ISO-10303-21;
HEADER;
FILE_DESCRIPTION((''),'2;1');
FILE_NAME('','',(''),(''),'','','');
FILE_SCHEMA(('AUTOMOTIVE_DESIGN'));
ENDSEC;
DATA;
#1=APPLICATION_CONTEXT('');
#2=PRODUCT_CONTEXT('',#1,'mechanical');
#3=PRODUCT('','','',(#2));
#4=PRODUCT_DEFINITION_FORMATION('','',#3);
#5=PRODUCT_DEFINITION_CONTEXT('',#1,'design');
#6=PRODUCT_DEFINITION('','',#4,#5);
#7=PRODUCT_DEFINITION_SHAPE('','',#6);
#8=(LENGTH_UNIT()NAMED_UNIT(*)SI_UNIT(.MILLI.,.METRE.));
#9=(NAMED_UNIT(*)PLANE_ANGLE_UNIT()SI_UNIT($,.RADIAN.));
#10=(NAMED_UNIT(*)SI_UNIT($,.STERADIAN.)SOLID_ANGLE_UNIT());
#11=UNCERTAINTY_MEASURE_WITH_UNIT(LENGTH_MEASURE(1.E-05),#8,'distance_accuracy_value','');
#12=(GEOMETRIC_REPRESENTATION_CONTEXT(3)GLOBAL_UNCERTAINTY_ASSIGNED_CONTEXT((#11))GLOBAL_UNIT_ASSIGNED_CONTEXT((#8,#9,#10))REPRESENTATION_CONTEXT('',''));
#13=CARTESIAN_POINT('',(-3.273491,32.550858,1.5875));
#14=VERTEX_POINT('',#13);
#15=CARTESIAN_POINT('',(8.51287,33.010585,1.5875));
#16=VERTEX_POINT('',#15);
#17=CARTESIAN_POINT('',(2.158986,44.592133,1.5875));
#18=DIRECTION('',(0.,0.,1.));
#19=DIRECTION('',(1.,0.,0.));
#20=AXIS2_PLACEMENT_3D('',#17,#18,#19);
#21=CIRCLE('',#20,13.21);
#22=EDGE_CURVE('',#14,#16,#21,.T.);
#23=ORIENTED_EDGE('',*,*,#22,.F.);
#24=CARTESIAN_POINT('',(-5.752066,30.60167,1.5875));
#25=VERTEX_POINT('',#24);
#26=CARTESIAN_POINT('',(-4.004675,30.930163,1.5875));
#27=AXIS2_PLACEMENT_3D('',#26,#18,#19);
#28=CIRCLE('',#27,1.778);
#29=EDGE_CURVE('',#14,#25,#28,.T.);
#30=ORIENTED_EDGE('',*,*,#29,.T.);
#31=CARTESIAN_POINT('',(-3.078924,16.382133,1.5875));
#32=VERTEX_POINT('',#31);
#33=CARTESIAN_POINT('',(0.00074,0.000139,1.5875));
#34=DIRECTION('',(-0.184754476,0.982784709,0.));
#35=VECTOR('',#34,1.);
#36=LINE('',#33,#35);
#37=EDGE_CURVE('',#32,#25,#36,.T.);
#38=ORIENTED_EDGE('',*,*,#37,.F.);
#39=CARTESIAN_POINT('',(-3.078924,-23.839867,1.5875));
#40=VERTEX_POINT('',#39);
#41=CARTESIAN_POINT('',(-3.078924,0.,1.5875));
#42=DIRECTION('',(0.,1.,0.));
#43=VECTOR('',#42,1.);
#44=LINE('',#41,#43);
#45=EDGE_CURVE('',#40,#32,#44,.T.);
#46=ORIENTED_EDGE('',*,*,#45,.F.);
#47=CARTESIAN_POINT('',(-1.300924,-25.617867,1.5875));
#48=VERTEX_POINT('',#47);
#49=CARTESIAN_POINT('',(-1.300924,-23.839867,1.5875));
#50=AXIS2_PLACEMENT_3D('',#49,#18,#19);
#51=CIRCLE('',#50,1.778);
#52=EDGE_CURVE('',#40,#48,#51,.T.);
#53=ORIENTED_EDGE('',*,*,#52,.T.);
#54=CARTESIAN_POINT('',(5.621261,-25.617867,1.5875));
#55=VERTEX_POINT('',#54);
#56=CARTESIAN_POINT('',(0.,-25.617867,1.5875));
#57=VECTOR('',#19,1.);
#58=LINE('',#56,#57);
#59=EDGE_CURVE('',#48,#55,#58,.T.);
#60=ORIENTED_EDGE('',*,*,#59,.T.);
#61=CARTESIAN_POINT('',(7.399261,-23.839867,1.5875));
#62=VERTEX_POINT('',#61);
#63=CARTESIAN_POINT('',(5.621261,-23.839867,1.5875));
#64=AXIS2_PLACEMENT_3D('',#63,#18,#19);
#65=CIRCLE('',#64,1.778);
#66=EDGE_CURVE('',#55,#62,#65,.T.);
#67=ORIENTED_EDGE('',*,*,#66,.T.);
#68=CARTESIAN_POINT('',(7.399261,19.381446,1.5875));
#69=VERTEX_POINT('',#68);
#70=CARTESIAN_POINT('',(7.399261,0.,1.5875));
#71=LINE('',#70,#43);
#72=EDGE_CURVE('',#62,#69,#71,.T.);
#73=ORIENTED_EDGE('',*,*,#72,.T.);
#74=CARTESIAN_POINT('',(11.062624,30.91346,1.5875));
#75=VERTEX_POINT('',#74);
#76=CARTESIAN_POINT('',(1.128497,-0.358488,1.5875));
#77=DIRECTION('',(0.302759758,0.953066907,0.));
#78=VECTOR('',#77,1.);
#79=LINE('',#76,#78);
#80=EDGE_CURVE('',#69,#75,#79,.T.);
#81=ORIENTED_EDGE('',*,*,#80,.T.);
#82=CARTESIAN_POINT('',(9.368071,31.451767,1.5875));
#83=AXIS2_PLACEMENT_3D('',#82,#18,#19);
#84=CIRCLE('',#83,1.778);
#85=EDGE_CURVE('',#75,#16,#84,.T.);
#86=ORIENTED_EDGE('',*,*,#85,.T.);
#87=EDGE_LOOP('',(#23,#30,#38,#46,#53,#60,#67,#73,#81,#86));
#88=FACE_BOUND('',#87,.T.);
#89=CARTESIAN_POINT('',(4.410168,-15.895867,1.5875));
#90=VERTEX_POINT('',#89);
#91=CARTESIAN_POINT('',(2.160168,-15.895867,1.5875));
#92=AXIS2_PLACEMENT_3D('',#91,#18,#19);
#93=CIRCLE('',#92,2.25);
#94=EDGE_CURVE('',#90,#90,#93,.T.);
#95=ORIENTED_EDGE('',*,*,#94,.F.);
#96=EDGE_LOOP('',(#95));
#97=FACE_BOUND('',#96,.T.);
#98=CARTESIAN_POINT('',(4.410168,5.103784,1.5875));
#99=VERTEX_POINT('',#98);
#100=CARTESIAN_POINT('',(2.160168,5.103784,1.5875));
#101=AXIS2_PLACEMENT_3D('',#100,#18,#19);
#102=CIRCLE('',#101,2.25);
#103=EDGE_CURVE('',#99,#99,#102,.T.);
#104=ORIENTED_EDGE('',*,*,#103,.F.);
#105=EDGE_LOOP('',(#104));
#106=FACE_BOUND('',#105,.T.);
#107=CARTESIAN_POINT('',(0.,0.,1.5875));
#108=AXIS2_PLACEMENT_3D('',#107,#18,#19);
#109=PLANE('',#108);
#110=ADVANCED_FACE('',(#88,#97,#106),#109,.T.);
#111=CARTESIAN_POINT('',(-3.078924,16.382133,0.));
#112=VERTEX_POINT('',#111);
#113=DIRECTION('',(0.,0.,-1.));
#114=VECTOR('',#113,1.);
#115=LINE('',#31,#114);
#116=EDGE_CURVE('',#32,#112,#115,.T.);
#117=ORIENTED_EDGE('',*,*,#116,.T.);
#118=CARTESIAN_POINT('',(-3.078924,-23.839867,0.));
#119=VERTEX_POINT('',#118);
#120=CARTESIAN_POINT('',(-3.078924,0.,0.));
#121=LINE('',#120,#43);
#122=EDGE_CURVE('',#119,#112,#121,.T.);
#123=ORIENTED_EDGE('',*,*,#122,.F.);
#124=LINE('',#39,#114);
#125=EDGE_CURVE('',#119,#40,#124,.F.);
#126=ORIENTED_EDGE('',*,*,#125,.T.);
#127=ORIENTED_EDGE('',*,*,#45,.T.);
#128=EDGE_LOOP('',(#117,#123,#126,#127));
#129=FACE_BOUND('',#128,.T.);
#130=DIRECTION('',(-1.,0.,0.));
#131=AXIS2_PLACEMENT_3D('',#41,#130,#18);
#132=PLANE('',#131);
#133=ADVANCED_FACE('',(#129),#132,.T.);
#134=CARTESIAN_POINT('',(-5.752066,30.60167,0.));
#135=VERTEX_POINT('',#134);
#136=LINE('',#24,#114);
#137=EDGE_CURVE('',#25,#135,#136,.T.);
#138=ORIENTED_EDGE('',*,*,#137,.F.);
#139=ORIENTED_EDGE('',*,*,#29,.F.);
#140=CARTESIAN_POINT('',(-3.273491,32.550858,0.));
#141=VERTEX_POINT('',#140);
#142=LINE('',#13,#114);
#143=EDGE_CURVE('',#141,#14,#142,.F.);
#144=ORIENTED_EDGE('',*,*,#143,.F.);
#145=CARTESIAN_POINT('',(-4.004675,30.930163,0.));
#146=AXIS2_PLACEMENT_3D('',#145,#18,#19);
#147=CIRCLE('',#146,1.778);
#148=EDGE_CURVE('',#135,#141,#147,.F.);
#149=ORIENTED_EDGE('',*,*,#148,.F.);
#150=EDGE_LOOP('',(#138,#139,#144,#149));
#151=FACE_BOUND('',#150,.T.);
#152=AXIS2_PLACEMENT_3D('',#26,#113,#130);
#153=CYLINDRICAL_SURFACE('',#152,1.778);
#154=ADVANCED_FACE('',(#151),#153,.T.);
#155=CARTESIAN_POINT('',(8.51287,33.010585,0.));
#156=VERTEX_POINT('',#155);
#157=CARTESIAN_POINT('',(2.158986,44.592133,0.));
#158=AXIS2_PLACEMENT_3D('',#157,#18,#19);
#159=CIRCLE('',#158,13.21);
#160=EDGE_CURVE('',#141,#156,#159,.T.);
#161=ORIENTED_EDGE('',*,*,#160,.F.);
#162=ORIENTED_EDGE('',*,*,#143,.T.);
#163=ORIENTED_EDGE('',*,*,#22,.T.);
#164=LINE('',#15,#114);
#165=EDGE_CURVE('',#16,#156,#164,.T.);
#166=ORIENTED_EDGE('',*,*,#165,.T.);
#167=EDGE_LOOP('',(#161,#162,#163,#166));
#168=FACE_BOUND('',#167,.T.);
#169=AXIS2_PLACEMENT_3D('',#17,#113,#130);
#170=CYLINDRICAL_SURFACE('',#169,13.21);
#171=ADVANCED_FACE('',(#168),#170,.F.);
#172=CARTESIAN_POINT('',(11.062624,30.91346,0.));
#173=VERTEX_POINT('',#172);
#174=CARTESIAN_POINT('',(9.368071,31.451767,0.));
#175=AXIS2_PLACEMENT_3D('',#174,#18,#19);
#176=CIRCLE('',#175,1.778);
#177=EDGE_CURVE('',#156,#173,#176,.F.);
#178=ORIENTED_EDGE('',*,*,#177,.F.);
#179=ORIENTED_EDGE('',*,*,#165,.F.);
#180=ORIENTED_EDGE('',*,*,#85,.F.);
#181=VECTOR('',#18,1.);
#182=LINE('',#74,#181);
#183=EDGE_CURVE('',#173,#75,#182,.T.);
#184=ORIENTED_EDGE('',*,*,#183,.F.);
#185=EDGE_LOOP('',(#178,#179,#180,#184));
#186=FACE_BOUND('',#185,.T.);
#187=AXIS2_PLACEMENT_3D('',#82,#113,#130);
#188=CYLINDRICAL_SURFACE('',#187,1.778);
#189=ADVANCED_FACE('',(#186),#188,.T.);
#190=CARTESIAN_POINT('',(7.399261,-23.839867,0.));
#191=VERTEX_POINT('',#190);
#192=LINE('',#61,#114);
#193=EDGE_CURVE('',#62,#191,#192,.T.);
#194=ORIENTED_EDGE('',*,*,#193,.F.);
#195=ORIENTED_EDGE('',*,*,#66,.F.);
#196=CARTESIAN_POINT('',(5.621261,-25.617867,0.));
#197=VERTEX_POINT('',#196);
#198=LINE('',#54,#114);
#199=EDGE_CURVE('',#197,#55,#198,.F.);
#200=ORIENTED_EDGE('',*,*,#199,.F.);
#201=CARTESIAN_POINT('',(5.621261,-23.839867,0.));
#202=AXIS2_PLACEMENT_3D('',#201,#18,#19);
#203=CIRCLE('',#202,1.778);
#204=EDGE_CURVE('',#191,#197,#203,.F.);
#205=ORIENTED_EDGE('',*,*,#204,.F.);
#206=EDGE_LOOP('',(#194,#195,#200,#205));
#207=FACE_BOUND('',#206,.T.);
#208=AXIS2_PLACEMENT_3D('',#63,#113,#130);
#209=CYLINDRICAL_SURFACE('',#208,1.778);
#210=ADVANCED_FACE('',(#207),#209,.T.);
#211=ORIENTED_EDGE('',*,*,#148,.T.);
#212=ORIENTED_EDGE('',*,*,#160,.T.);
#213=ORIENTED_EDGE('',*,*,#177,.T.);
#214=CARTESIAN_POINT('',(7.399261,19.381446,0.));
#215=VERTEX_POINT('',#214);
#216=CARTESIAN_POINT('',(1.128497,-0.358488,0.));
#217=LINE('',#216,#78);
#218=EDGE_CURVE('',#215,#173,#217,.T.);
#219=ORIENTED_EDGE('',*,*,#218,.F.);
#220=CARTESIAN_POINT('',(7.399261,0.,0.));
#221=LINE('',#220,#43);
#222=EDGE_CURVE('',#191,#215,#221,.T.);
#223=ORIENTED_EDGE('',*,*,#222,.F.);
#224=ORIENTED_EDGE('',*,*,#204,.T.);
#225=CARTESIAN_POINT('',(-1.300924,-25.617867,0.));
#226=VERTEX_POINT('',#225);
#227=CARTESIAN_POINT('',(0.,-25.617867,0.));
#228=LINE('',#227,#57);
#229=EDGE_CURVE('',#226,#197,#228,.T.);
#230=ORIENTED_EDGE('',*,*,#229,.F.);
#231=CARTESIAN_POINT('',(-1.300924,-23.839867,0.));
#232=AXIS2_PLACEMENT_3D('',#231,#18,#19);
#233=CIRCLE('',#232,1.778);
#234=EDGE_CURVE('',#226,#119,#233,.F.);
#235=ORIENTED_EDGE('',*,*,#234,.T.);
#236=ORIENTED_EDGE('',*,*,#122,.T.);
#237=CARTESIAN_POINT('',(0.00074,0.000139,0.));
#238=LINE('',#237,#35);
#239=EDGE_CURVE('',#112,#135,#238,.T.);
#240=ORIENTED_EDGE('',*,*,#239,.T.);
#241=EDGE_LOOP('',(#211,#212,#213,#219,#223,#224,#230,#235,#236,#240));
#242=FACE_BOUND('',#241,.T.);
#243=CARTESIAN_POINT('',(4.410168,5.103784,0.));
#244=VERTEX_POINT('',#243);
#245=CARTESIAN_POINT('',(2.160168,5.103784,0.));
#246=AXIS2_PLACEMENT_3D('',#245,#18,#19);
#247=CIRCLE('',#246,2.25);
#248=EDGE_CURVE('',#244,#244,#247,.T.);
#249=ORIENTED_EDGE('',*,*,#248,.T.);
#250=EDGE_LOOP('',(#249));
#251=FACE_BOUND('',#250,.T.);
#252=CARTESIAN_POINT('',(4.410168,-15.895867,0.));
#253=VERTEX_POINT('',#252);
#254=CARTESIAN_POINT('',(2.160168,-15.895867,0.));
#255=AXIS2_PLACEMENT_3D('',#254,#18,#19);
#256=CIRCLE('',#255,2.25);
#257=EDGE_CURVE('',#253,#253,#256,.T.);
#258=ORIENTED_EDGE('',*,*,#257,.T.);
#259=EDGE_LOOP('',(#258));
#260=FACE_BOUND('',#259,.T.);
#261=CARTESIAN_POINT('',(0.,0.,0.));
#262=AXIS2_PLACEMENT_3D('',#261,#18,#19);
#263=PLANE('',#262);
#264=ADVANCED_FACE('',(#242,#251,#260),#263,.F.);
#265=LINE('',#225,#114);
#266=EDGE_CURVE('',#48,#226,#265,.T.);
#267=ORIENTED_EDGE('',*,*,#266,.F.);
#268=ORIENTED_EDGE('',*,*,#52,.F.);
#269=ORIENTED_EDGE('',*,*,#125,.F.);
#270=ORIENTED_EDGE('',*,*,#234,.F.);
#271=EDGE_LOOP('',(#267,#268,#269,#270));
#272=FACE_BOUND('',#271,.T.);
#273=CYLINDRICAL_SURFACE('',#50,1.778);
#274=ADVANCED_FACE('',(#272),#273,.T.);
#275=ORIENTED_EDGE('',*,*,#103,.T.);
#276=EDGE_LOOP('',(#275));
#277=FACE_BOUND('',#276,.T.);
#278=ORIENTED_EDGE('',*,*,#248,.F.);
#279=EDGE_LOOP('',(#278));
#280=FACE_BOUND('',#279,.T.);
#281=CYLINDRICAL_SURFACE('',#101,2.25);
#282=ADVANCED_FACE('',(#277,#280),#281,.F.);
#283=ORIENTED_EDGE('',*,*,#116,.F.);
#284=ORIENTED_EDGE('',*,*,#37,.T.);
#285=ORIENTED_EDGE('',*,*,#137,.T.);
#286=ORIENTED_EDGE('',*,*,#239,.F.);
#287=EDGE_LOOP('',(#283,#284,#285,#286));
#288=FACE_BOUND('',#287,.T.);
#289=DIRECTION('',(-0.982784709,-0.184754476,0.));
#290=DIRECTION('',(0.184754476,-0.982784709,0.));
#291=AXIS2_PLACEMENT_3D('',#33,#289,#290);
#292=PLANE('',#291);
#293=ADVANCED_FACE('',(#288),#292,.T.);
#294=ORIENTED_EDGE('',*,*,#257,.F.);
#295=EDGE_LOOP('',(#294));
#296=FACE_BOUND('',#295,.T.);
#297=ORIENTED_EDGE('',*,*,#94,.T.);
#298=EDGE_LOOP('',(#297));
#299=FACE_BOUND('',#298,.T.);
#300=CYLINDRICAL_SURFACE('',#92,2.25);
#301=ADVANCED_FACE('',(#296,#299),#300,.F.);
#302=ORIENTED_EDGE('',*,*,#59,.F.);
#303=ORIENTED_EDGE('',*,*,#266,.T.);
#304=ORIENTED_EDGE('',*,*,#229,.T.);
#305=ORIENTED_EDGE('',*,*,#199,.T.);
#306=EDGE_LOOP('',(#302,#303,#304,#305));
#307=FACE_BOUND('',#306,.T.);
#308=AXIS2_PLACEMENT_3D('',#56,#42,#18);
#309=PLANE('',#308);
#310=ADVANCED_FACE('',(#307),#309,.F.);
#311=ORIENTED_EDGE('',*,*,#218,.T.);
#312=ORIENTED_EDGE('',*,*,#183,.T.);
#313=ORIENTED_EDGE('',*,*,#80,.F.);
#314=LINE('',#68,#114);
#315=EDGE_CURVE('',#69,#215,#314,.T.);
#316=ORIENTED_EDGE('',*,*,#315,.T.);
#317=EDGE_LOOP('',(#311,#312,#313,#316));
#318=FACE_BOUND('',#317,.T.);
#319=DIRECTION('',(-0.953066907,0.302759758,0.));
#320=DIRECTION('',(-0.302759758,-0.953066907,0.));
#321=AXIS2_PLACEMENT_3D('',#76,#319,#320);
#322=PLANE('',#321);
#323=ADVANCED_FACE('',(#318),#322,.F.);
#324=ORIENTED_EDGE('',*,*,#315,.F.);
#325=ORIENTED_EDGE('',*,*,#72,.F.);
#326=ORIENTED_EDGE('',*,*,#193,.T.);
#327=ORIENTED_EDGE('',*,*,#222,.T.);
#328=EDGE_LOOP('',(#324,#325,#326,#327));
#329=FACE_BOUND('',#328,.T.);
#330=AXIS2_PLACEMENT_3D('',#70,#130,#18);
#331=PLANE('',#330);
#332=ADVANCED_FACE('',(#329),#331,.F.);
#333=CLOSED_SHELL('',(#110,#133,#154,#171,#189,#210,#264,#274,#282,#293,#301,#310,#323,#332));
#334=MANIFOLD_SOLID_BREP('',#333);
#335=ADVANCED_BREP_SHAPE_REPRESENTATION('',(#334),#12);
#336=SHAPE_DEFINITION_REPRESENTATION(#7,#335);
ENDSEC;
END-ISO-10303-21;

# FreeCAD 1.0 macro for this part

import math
import FreeCAD as App
import Part
import Sketcher
from FreeCAD import Vector
Q = App.Units.Quantity


def edges_at(feature, points):
    """Names of the edges that pass closest to the given points."""
    edges = feature.Shape.Edges
    near = lambda p: min(range(len(edges)), key=lambda i: edges[i].distToShape(Part.Vertex(*p))[0])
    return sorted({f"Edge{near(p) + 1}" for p in points})

doc = App.newDocument("Part")
body = doc.addObject("PartDesign::Body", "Body")

# Sketch on XY plane
sketch1 = body.newObject("Sketcher::SketchObject", "Sketch")
sketch1.AttachmentSupport = (doc.getObject("XY_Plane"), [""])
sketch1.MapMode = "FlatFace"
sketch1.addGeometry(Part.LineSegment(Vector(-3.078924, 16.382133, 0), Vector(-3.078924, -25.617867, 0)), False)
sketch1.addGeometry(Part.LineSegment(Vector(-3.078924, -25.617867, 0), Vector(7.399261, -25.617867, 0)), False)
sketch1.addGeometry(Part.LineSegment(Vector(7.399261, -25.617867, 0), Vector(7.399261, 19.381446, 0)), False)
sketch1.addGeometry(Part.LineSegment(Vector(7.399261, 19.381446, 0), Vector(13.018541, 37.070554, 0)), False)
sketch1.addGeometry(Part.ArcOfCircle(Part.Circle(Vector(2.158986, 44.592133, 0), Vector(0, 0, 1), 13.21), math.radians(-131.002582), math.radians(-34.707367)), False)
sketch1.addGeometry(Part.LineSegment(Vector(-6.508003, 34.62281, 0), Vector(-3.078924, 16.382133, 0)), False)
sketch1.addConstraint(Sketcher.Constraint("Coincident", 0, 2, 1, 1))
sketch1.addConstraint(Sketcher.Constraint("Coincident", 1, 2, 2, 1))
sketch1.addConstraint(Sketcher.Constraint("Coincident", 2, 2, 3, 1))
sketch1.addConstraint(Sketcher.Constraint("Coincident", 3, 2, 4, 2))
sketch1.addConstraint(Sketcher.Constraint("Coincident", 4, 1, 5, 1))
sketch1.addConstraint(Sketcher.Constraint("Coincident", 5, 2, 0, 1))
sketch1.addConstraint(Sketcher.Constraint("Vertical", 0))
sketch1.addConstraint(Sketcher.Constraint("Horizontal", 1))
sketch1.addConstraint(Sketcher.Constraint("Vertical", 2))
sketch1.addConstraint(Sketcher.Constraint("Equal", 3, 5))
sketch1.addConstraint(Sketcher.Constraint("DistanceY", 0, 2, 0, 1, Q("42 mm")))
sketch1.addConstraint(Sketcher.Constraint("Radius", 4, Q("13.21 mm")))
sketch1.addConstraint(Sketcher.Constraint("DistanceY", 0, 2, 4, 3, Q("70.21 mm")))
sketch1.addConstraint(Sketcher.Constraint("DistanceX", 1, 1, 1, 2, Q("10.478185 mm")))
sketch1.addConstraint(Sketcher.Constraint("DistanceY", 2, 1, 2, 2, Q("44.999312 mm")))
sketch1.addConstraint(Sketcher.Constraint("DistanceX", -1, 1, 1, 2, Q("7.399261 mm")))
sketch1.addConstraint(Sketcher.Constraint("DistanceX", -1, 1, 3, 2, Q("13.018541 mm")))
sketch1.addConstraint(Sketcher.Constraint("DistanceY", -1, 1, 4, 1, Q("34.62281 mm")))
sketch1.addConstraint(Sketcher.Constraint("DistanceX", 0, 2, 4, 3, Q("5.23791 mm")))
pad1 = body.newObject("PartDesign::Pad", "Pad")
pad1.Profile = sketch1
pad1.Length = 1.5875
doc.recompute()

fillet = body.newObject("PartDesign::Fillet", "Fillet")
fillet.Base = (pad1, edges_at(pad1, [
    (-3.079, -25.618, 0.794),
    (-6.508, 34.623, 0.794),
    (13.019, 37.071, 0.794),
    (7.399, -25.618, 0.794),
]))
fillet.Radius = 1.778

# Sketch on XY plane
sketch2 = body.newObject("Sketcher::SketchObject", "Sketch001")
sketch2.AttachmentSupport = (doc.getObject("XY_Plane"), [""])
sketch2.MapMode = "FlatFace"
sketch2.AttachmentOffset = App.Placement(Vector(0, 0, 1.5875), App.Rotation())
sketch2.addGeometry(Part.Circle(Vector(2.160168, 5.103784, 0), Vector(0, 0, 1), 2.25), False)
sketch2.addGeometry(Part.Circle(Vector(2.160168, -15.895867, 0), Vector(0, 0, 1), 2.25), False)
sketch2.addConstraint(Sketcher.Constraint("Equal", 0, 1))
sketch2.addConstraint(Sketcher.Constraint("Vertical", 0, 3, 1, 3))
sketch2.addConstraint(Sketcher.Constraint("Diameter", 0, Q("4.5 mm")))
sketch2.addConstraint(Sketcher.Constraint("DistanceX", -1, 1, 0, 3, Q("2.160168 mm")))
sketch2.addConstraint(Sketcher.Constraint("DistanceY", 1, 3, 0, 3, Q("20.999651 mm")))
sketch2.addConstraint(Sketcher.Constraint("DistanceY", -1, 1, 0, 3, Q("5.103784 mm")))
doc.recompute()
hole = body.newObject("PartDesign::Hole", "Hole")
hole.Profile = sketch2
hole.ThreadType = "None"
hole.Diameter = 4.5
hole.DepthType = "ThroughAll"

doc.recompute()
